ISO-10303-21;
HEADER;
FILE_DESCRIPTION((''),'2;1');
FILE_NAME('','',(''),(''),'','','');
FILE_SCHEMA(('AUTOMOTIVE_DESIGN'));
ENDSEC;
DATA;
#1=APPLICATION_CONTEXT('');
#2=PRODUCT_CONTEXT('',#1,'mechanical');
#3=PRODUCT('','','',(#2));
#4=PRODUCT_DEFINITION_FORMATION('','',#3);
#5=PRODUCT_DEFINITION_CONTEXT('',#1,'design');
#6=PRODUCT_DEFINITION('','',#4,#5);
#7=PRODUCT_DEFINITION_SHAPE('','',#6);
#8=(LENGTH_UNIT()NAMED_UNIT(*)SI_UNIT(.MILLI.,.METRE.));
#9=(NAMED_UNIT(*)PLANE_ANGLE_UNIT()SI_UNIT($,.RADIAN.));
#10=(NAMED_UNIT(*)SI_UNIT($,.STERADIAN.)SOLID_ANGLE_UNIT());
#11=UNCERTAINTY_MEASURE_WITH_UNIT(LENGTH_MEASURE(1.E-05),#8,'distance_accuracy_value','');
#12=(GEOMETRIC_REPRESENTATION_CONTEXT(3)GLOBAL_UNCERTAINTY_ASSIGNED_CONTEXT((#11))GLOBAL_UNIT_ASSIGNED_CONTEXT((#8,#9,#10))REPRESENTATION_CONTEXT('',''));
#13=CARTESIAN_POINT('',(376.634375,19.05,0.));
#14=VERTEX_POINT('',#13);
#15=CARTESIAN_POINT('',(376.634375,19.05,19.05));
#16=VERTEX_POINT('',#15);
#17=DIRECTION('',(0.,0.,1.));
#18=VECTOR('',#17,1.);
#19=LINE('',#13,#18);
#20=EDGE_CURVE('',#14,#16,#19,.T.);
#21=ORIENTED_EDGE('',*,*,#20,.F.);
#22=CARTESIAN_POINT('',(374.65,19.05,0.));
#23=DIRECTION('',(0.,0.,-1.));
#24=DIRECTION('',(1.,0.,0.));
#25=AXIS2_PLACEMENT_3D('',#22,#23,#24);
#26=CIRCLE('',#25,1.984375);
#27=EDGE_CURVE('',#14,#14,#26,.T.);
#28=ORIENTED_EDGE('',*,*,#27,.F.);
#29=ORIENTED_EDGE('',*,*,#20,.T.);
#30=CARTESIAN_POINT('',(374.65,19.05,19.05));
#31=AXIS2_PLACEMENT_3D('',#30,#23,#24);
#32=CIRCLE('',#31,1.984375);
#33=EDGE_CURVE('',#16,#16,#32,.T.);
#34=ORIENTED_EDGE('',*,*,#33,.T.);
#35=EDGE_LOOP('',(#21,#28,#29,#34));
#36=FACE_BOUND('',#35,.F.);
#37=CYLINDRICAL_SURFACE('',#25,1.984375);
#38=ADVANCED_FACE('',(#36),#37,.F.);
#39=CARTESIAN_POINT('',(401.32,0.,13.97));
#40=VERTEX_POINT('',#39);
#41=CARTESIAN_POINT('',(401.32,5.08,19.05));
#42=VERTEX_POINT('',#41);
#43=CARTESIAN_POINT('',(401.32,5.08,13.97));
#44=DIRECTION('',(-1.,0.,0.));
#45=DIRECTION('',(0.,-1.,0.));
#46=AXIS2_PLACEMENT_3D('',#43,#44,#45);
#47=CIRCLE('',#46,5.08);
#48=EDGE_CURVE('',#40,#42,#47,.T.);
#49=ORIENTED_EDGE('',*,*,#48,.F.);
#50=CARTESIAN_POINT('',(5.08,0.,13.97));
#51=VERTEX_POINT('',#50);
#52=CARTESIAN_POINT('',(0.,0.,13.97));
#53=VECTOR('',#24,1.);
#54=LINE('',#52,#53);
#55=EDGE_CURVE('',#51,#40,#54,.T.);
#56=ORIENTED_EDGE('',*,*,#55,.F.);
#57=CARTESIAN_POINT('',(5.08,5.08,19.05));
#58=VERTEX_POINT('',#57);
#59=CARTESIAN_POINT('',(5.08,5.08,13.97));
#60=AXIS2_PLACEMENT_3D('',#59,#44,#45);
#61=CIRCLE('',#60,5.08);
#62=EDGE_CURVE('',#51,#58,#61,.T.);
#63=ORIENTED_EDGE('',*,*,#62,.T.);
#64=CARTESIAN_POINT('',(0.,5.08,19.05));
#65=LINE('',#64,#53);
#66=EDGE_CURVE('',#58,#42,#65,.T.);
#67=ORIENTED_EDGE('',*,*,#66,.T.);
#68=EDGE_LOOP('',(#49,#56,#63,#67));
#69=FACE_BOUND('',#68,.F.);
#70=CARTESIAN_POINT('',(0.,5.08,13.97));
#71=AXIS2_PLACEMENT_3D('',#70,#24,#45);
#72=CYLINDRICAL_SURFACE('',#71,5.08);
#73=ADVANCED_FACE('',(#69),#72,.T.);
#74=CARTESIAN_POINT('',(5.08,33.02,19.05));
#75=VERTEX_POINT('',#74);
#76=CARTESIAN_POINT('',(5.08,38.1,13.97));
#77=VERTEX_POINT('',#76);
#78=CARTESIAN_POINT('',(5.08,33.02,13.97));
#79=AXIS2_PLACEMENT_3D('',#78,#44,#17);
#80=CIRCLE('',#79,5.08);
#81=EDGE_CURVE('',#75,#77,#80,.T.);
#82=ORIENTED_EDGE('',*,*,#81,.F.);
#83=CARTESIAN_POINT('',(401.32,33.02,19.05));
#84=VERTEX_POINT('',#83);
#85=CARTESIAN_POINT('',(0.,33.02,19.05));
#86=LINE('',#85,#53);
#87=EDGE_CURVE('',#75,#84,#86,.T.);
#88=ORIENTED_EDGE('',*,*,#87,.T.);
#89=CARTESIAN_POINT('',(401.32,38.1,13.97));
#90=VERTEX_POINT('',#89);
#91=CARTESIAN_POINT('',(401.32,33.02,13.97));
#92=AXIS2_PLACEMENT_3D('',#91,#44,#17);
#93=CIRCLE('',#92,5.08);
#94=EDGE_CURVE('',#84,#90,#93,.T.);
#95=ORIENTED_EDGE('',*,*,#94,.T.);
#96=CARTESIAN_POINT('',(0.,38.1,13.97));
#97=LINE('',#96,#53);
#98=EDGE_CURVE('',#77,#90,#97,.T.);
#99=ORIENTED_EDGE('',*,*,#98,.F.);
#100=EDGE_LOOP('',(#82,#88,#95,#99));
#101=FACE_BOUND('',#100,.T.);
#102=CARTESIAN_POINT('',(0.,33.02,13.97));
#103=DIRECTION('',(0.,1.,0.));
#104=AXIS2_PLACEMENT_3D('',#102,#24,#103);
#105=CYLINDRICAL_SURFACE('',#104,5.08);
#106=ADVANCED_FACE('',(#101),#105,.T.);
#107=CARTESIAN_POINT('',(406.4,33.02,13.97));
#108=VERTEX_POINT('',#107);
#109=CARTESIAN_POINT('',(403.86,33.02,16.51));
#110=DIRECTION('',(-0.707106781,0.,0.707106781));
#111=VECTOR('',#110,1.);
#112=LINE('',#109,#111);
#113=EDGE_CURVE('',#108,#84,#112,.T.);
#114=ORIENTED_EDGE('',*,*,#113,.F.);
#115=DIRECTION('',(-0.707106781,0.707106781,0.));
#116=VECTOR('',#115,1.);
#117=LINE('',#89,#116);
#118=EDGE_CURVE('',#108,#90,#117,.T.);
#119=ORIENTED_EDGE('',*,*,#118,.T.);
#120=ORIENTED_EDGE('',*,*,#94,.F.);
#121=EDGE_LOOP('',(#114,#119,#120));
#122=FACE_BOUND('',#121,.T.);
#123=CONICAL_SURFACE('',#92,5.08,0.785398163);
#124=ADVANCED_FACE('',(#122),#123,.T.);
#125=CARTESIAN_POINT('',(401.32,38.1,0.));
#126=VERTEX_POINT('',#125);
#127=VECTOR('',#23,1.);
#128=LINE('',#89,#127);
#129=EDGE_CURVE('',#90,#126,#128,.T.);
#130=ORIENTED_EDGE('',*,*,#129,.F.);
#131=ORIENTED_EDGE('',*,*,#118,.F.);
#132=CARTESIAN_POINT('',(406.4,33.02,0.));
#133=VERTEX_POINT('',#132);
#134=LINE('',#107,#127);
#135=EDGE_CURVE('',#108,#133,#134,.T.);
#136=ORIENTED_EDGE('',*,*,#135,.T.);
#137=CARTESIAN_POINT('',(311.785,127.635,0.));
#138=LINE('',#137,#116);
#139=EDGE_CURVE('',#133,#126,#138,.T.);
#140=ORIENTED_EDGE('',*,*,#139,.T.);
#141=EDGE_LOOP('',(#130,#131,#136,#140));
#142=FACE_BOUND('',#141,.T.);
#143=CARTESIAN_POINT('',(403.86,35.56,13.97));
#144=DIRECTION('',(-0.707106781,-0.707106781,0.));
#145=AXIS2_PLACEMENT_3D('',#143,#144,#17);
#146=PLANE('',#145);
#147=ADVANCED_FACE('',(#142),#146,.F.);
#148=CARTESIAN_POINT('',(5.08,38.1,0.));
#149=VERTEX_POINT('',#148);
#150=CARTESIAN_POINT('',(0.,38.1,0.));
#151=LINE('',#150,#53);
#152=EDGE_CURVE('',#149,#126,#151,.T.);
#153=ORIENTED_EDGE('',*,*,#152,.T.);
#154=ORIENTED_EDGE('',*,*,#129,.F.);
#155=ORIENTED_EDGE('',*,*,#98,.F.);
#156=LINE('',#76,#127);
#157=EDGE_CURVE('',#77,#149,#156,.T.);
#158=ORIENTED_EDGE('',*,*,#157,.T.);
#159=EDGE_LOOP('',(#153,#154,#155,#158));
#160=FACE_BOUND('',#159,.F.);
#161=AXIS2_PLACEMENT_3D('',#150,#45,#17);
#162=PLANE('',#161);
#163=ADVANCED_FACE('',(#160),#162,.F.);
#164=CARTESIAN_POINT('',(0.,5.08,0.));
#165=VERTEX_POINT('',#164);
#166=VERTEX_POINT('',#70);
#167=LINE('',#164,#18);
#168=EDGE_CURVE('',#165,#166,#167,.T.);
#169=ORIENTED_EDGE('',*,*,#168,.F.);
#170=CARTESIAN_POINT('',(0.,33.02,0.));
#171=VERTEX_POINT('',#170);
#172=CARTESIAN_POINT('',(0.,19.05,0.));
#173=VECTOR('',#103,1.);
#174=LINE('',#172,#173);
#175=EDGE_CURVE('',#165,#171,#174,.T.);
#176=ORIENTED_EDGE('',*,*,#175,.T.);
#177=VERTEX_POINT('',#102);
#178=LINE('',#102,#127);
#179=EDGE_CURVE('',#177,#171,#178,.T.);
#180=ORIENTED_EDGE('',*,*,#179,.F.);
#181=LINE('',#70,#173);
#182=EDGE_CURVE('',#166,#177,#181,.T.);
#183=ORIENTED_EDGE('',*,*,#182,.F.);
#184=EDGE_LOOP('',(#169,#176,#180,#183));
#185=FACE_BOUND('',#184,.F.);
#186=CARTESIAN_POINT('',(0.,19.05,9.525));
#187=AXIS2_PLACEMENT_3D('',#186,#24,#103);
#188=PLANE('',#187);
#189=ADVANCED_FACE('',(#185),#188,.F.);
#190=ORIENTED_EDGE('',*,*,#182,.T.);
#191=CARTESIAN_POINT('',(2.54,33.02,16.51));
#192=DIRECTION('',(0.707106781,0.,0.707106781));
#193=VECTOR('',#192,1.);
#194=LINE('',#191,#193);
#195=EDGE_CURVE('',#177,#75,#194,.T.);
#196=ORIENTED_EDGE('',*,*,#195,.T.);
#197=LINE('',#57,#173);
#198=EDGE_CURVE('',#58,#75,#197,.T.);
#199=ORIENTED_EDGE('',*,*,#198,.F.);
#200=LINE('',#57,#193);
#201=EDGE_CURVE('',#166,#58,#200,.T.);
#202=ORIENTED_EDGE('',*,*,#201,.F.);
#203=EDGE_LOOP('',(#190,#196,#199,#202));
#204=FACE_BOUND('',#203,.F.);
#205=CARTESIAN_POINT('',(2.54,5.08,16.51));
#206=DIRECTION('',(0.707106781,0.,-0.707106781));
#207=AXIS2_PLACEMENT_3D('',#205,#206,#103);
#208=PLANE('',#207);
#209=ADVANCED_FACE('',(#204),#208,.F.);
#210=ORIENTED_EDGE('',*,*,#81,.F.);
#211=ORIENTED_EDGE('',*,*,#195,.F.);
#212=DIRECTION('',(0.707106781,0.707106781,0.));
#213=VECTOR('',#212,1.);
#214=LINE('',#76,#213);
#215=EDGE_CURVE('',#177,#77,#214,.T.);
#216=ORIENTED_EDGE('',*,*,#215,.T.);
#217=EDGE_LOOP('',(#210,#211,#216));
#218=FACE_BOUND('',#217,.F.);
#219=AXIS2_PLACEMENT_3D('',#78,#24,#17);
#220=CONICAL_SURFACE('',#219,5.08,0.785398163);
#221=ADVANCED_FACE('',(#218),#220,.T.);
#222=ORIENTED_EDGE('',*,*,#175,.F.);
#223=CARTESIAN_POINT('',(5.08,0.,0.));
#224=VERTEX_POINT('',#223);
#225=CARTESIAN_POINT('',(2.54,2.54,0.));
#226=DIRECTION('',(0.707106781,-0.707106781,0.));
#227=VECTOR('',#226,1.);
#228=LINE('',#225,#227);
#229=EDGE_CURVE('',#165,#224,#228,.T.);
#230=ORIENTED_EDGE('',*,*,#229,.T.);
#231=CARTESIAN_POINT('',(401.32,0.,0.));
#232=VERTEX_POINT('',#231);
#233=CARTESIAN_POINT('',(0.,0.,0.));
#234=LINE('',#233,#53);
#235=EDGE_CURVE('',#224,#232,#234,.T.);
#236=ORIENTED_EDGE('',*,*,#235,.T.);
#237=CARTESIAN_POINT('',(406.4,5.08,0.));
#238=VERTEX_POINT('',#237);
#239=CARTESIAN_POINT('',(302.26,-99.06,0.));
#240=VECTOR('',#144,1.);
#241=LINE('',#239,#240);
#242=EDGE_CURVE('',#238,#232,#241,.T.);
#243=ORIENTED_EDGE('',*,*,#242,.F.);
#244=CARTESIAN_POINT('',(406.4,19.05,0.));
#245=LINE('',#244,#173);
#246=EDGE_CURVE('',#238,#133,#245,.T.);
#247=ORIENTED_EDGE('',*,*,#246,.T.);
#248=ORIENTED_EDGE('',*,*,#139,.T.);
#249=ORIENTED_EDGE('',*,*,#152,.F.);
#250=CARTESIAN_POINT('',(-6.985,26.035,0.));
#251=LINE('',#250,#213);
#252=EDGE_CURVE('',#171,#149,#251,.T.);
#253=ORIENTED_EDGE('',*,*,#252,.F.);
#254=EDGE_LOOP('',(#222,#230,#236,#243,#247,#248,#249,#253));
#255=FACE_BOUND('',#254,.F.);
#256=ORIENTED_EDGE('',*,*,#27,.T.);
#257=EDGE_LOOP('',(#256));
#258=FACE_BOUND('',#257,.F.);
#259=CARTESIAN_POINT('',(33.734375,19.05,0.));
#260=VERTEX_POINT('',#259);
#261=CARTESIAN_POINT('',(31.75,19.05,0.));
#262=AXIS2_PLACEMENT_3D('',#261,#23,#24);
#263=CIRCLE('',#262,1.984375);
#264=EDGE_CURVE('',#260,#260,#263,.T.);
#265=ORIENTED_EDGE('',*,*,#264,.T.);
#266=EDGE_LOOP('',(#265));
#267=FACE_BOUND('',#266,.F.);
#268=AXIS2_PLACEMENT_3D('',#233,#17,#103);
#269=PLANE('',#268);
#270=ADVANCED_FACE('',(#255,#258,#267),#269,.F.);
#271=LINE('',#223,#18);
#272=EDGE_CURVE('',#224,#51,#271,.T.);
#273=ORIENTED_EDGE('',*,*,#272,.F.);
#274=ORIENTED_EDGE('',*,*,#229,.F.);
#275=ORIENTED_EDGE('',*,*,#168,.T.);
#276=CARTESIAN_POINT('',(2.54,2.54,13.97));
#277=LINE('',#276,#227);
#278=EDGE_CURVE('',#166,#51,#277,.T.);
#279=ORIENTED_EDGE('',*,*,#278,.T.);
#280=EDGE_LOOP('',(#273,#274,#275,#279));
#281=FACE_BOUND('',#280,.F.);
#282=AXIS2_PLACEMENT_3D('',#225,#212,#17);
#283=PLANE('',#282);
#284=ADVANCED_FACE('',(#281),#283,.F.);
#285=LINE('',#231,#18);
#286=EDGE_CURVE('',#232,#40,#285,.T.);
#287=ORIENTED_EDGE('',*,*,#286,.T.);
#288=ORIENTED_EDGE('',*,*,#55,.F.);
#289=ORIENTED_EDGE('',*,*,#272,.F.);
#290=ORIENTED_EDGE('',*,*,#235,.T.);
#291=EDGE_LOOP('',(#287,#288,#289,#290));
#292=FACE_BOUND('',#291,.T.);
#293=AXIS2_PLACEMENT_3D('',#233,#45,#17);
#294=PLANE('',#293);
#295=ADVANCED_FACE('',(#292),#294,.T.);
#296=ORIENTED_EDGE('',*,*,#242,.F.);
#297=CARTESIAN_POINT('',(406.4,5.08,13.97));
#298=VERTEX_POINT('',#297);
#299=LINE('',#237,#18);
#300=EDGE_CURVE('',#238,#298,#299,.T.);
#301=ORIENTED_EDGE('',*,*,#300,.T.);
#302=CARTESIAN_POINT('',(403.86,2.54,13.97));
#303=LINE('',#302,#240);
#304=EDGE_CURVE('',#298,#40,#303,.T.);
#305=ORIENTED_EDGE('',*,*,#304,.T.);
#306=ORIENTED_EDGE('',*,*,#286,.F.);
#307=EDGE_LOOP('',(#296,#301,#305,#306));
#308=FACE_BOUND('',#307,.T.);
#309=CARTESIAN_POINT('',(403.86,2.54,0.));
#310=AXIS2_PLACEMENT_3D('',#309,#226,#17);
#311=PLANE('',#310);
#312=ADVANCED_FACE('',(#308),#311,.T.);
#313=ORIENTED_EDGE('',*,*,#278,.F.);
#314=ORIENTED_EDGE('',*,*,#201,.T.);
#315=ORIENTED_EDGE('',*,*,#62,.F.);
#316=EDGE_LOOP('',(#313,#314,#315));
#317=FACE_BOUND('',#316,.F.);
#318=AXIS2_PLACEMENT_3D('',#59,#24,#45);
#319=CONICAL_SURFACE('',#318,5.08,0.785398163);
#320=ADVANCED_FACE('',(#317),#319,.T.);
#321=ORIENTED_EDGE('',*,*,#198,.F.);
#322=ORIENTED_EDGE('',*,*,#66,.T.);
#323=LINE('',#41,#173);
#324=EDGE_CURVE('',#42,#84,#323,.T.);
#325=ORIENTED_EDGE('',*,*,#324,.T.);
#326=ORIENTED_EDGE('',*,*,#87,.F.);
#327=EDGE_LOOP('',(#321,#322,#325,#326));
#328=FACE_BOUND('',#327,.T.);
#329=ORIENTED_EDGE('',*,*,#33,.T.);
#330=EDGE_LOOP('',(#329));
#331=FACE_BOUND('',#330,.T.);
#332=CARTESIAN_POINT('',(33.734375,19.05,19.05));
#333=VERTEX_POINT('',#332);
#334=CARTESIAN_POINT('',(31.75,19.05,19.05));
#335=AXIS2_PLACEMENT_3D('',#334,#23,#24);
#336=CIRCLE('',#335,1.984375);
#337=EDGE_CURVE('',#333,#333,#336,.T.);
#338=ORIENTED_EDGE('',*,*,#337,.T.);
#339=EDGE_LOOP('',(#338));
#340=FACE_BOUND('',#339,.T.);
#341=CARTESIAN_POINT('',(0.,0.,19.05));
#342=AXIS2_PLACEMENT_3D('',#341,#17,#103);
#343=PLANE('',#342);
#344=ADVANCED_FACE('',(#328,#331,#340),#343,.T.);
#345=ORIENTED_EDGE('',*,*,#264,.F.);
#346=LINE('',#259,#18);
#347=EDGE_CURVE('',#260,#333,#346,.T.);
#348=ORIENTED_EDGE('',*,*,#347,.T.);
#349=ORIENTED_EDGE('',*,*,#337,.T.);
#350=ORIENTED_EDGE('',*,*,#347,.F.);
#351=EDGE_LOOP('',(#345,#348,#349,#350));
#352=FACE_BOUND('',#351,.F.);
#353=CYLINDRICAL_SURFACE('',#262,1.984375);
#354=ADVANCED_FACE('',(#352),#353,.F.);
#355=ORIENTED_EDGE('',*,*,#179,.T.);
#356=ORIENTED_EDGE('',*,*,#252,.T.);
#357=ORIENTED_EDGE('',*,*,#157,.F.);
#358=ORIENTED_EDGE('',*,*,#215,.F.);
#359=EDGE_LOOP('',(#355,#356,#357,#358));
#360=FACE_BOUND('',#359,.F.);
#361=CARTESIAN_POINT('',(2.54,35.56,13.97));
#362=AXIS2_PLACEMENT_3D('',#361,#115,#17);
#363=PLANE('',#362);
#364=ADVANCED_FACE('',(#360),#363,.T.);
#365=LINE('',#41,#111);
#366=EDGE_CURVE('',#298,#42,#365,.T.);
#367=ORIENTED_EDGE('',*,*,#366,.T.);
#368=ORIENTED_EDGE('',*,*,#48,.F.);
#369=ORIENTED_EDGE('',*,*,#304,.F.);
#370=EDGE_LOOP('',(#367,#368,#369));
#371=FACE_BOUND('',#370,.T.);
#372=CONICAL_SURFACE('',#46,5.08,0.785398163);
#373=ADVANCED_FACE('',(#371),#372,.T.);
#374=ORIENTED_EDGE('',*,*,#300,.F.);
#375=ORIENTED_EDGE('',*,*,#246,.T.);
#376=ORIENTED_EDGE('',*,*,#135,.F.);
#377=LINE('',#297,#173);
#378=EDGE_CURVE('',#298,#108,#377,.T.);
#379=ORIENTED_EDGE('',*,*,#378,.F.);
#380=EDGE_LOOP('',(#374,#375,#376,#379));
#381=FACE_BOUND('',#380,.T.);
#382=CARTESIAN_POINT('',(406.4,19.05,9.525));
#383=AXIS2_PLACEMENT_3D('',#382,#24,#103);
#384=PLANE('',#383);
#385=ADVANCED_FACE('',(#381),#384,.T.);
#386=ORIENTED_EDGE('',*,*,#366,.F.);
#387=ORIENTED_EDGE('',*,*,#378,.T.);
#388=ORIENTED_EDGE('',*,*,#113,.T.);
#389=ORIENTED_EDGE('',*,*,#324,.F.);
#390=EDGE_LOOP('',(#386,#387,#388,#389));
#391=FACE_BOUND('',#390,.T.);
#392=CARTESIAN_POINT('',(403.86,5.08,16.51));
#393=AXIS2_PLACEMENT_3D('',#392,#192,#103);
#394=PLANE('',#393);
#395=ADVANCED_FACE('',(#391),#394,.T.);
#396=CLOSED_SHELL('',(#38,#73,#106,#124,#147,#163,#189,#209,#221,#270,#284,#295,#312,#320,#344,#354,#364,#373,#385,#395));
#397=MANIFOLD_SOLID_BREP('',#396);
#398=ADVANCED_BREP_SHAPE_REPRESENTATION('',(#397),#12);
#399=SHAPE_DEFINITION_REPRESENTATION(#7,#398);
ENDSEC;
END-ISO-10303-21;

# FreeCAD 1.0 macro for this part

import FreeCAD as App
import Part
import Sketcher

V = App.Vector
Q = App.Units.Quantity


def edges_at(feature, points):
    """Names of the edges that pass closest to the given points."""
    edges = feature.Shape.Edges
    near = lambda p: min(range(len(edges)), key=lambda i: edges[i].distToShape(Part.Vertex(*p))[0])
    return sorted({f"Edge{near(p) + 1}" for p in points})

doc = App.newDocument("Part")
body = doc.addObject("PartDesign::Body", "Body")

# Sketch on YZ plane
sketch1 = doc.addObject("Sketcher::SketchObject", "Sketch")
body.addObject(sketch1)
sketch1.AttachmentSupport = (doc.YZ_Plane, [""])
sketch1.MapMode = "FlatFace"
sketch1.addGeometry(Part.LineSegment(V(0, 19, 0), V(0, 0, 0)), False)
sketch1.addGeometry(Part.LineSegment(V(0, 0, 0), V(38, 0, 0)), False)
sketch1.addGeometry(Part.LineSegment(V(38, 0, 0), V(38, 19, 0)), False)
sketch1.addGeometry(Part.LineSegment(V(38, 19, 0), V(0, 19, 0)), False)
sketch1.addConstraint(Sketcher.Constraint("Coincident", 0, 2, 1, 1))
sketch1.addConstraint(Sketcher.Constraint("Coincident", 1, 2, 2, 1))
sketch1.addConstraint(Sketcher.Constraint("Coincident", 2, 2, 3, 1))
sketch1.addConstraint(Sketcher.Constraint("Coincident", 3, 2, 0, 1))
sketch1.addConstraint(Sketcher.Constraint("Vertical", 0))
sketch1.addConstraint(Sketcher.Constraint("Horizontal", 1))
sketch1.addConstraint(Sketcher.Constraint("Vertical", 2))
sketch1.addConstraint(Sketcher.Constraint("Horizontal", 3))
sketch1.addConstraint(Sketcher.Constraint("Coincident", 0, 2, -1, 1))
sketch1.addConstraint(Sketcher.Constraint("DistanceX", 1, 1, 1, 2, Q("1.5 in")))
sketch1.addConstraint(Sketcher.Constraint("DistanceY", 0, 2, 0, 1, Q("0.75 in")))
pad1 = doc.addObject("PartDesign::Pad", "Pad")
body.addObject(pad1)
pad1.Profile = sketch1
pad1.Length = Q("16 in")
doc.recompute()

fillet = doc.addObject("PartDesign::Fillet", "Fillet")
body.addObject(fillet)
fillet.Base = (pad1, edges_at(pad1, [(203.2, 0, 19.05), (203.2, 38.1, 19.05)]))
fillet.Radius = Q("0.2 in")
doc.recompute()

chamfer = doc.addObject("PartDesign::Chamfer", "Chamfer")
body.addObject(chamfer)
chamfer.Base = (fillet, edges_at(fillet, [(406.4, 19.05, 19.05), (0, 19.05, 19.05)]))
chamfer.Size = Q("0.2 in")

# Sketch on XY plane
sketch2 = doc.addObject("Sketcher::SketchObject", "Sketch001")
body.addObject(sketch2)
sketch2.AttachmentSupport = (doc.XY_Plane, [""])
sketch2.MapMode = "FlatFace"
sketch2.addGeometry(Part.Circle(V(31.8, 19.1, 0), V(0, 0, 1), 2), False)
sketch2.addGeometry(Part.Circle(V(374.6, 19.1, 0), V(0, 0, 1), 2), False)
sketch2.addConstraint(Sketcher.Constraint("Equal", 0, 1))
sketch2.addConstraint(Sketcher.Constraint("Horizontal", 0, 3, 1, 3))
sketch2.addConstraint(Sketcher.Constraint("Diameter", 0, Q("0.15625 in")))
sketch2.addConstraint(Sketcher.Constraint("DistanceX", 0, 3, 1, 3, Q("13.5 in")))
sketch2.addConstraint(Sketcher.Constraint("DistanceX", -1, 1, 0, 3, Q("1.25 in")))
sketch2.addConstraint(Sketcher.Constraint("DistanceY", -1, 1, 0, 3, Q("0.75 in")))
pocket1 = doc.addObject("PartDesign::Pocket", "Pocket")
body.addObject(pocket1)
pocket1.Profile = sketch2
pocket1.Length = Q("1 in")
pocket1.Reversed = True

doc.recompute()
